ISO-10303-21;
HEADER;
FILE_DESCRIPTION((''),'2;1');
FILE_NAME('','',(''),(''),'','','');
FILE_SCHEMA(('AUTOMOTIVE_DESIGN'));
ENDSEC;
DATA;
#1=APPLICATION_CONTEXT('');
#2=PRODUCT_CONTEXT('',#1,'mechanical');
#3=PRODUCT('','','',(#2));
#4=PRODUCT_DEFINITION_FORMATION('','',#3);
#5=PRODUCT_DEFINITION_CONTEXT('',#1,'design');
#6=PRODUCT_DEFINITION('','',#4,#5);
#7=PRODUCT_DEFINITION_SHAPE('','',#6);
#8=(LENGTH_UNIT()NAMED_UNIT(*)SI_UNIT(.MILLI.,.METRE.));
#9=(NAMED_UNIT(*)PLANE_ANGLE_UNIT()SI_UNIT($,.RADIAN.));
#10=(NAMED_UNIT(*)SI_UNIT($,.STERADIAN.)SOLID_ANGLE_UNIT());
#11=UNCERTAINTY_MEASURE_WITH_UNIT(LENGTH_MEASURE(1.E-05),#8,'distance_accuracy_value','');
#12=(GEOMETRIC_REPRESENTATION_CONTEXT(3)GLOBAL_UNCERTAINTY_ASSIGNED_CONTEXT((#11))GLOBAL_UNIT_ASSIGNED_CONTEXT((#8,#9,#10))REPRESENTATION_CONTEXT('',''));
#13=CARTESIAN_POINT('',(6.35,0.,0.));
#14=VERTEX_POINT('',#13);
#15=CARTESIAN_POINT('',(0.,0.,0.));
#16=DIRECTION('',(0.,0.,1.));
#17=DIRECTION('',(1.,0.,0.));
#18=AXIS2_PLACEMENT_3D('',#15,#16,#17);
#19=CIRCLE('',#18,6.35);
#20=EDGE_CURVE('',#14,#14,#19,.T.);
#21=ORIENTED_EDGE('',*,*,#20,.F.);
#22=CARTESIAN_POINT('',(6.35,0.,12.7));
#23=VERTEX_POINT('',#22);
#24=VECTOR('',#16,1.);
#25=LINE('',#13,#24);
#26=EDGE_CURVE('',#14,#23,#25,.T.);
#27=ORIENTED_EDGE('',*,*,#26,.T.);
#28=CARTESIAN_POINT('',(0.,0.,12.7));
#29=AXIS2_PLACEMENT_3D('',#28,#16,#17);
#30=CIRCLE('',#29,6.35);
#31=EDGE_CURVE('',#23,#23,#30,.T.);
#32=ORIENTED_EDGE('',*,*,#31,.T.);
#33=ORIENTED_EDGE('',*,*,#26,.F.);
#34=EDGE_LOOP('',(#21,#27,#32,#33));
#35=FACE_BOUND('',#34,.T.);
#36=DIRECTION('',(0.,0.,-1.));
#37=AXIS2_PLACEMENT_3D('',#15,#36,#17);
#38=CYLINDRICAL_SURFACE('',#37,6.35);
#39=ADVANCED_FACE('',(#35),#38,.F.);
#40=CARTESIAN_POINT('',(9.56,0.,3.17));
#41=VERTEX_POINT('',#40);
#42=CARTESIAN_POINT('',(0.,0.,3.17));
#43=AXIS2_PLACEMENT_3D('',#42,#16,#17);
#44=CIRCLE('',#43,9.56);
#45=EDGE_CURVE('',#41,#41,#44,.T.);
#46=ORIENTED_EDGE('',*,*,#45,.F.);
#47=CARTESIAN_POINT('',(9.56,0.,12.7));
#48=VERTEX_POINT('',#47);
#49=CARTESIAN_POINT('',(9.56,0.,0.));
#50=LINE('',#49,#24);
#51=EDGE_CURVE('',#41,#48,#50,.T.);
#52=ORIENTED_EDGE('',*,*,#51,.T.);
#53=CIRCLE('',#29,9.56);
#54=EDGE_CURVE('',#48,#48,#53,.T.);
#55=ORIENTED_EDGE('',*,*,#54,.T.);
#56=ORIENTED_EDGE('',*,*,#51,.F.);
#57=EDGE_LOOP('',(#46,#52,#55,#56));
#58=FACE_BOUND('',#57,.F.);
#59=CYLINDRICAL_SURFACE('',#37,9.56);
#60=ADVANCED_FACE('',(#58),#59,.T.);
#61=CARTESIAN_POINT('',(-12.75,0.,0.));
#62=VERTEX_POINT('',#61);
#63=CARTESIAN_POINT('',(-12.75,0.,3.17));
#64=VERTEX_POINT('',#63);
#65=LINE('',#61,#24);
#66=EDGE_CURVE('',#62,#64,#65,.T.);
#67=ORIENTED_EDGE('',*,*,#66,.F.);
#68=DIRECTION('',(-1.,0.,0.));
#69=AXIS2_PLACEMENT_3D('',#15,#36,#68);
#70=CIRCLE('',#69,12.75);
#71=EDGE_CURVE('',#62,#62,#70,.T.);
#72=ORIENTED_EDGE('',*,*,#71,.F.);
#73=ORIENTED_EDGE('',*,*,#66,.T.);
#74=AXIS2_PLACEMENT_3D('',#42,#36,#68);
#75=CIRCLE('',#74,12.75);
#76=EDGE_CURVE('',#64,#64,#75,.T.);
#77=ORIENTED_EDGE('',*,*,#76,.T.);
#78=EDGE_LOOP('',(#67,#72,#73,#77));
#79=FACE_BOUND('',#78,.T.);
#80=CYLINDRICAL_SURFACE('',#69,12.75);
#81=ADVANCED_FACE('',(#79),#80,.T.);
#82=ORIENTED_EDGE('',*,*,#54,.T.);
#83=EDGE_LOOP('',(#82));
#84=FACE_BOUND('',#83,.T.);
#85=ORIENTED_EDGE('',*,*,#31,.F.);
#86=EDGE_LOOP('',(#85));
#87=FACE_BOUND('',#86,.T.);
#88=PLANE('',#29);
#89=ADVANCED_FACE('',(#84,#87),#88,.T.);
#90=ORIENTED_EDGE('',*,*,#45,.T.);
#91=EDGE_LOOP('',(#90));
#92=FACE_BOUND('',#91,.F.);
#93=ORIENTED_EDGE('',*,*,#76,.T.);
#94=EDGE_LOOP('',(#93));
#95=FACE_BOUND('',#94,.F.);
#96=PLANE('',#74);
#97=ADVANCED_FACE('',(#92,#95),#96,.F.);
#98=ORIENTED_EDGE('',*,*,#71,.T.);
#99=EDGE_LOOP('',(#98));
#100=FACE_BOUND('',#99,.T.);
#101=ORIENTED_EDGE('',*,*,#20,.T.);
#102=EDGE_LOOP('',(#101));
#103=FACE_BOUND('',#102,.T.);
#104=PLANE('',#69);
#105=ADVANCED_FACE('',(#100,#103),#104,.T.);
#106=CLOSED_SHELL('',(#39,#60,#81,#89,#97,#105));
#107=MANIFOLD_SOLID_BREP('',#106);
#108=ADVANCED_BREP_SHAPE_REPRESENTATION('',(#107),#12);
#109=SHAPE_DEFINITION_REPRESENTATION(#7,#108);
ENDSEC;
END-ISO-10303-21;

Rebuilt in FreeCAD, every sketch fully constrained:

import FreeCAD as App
import Part
import Sketcher

doc = App.newDocument("Part")
body = doc.addObject("PartDesign::Body", "Body")

# Sketch on XY plane
sketch1 = body.newObject("Sketcher::SketchObject", "Sketch")
sketch1.AttachmentSupport = (doc.getObject("XY_Plane"), [""])
sketch1.MapMode = "FlatFace"
sketch1.addGeometry([
    Part.Circle(App.Vector(0, 0, 0), App.Vector(0, 0, 1), 10),
    Part.Circle(App.Vector(0, 0, 0), App.Vector(0, 0, 1), 6),
], False)
sketch1.addConstraint([
    Sketcher.Constraint("Coincident", 0, 3, -1, 1),
    Sketcher.Constraint("Coincident", 1, 3, -1, 1),
    Sketcher.Constraint("Diameter", 1, 12.7),
    Sketcher.Constraint("Diameter", 0, 19.12),
])
pad1 = body.newObject("PartDesign::Pad", "Pad")
pad1.Profile = sketch1
pad1.Length = 12.7

# Sketch on XY plane
sketch2 = body.newObject("Sketcher::SketchObject", "Sketch001")
sketch2.AttachmentSupport = (doc.getObject("XY_Plane"), [""])
sketch2.MapMode = "FlatFace"
sketch2.addGeometry([
    Part.Circle(App.Vector(0, 0, 0), App.Vector(0, 0, 1), 13),
    Part.Circle(App.Vector(0, 0, 0), App.Vector(0, 0, 1), 10),
], False)
sketch2.addConstraint([
    Sketcher.Constraint("Coincident", 0, 3, -1, 1),
    Sketcher.Constraint("Coincident", 1, 3, -1, 1),
    Sketcher.Constraint("Diameter", 0, 25.5),
    Sketcher.Constraint("Diameter", 1, 19.12),
])
pad2 = body.newObject("PartDesign::Pad", "Pad001")
pad2.Profile = sketch2
pad2.Length = 3.17

doc.recompute()
